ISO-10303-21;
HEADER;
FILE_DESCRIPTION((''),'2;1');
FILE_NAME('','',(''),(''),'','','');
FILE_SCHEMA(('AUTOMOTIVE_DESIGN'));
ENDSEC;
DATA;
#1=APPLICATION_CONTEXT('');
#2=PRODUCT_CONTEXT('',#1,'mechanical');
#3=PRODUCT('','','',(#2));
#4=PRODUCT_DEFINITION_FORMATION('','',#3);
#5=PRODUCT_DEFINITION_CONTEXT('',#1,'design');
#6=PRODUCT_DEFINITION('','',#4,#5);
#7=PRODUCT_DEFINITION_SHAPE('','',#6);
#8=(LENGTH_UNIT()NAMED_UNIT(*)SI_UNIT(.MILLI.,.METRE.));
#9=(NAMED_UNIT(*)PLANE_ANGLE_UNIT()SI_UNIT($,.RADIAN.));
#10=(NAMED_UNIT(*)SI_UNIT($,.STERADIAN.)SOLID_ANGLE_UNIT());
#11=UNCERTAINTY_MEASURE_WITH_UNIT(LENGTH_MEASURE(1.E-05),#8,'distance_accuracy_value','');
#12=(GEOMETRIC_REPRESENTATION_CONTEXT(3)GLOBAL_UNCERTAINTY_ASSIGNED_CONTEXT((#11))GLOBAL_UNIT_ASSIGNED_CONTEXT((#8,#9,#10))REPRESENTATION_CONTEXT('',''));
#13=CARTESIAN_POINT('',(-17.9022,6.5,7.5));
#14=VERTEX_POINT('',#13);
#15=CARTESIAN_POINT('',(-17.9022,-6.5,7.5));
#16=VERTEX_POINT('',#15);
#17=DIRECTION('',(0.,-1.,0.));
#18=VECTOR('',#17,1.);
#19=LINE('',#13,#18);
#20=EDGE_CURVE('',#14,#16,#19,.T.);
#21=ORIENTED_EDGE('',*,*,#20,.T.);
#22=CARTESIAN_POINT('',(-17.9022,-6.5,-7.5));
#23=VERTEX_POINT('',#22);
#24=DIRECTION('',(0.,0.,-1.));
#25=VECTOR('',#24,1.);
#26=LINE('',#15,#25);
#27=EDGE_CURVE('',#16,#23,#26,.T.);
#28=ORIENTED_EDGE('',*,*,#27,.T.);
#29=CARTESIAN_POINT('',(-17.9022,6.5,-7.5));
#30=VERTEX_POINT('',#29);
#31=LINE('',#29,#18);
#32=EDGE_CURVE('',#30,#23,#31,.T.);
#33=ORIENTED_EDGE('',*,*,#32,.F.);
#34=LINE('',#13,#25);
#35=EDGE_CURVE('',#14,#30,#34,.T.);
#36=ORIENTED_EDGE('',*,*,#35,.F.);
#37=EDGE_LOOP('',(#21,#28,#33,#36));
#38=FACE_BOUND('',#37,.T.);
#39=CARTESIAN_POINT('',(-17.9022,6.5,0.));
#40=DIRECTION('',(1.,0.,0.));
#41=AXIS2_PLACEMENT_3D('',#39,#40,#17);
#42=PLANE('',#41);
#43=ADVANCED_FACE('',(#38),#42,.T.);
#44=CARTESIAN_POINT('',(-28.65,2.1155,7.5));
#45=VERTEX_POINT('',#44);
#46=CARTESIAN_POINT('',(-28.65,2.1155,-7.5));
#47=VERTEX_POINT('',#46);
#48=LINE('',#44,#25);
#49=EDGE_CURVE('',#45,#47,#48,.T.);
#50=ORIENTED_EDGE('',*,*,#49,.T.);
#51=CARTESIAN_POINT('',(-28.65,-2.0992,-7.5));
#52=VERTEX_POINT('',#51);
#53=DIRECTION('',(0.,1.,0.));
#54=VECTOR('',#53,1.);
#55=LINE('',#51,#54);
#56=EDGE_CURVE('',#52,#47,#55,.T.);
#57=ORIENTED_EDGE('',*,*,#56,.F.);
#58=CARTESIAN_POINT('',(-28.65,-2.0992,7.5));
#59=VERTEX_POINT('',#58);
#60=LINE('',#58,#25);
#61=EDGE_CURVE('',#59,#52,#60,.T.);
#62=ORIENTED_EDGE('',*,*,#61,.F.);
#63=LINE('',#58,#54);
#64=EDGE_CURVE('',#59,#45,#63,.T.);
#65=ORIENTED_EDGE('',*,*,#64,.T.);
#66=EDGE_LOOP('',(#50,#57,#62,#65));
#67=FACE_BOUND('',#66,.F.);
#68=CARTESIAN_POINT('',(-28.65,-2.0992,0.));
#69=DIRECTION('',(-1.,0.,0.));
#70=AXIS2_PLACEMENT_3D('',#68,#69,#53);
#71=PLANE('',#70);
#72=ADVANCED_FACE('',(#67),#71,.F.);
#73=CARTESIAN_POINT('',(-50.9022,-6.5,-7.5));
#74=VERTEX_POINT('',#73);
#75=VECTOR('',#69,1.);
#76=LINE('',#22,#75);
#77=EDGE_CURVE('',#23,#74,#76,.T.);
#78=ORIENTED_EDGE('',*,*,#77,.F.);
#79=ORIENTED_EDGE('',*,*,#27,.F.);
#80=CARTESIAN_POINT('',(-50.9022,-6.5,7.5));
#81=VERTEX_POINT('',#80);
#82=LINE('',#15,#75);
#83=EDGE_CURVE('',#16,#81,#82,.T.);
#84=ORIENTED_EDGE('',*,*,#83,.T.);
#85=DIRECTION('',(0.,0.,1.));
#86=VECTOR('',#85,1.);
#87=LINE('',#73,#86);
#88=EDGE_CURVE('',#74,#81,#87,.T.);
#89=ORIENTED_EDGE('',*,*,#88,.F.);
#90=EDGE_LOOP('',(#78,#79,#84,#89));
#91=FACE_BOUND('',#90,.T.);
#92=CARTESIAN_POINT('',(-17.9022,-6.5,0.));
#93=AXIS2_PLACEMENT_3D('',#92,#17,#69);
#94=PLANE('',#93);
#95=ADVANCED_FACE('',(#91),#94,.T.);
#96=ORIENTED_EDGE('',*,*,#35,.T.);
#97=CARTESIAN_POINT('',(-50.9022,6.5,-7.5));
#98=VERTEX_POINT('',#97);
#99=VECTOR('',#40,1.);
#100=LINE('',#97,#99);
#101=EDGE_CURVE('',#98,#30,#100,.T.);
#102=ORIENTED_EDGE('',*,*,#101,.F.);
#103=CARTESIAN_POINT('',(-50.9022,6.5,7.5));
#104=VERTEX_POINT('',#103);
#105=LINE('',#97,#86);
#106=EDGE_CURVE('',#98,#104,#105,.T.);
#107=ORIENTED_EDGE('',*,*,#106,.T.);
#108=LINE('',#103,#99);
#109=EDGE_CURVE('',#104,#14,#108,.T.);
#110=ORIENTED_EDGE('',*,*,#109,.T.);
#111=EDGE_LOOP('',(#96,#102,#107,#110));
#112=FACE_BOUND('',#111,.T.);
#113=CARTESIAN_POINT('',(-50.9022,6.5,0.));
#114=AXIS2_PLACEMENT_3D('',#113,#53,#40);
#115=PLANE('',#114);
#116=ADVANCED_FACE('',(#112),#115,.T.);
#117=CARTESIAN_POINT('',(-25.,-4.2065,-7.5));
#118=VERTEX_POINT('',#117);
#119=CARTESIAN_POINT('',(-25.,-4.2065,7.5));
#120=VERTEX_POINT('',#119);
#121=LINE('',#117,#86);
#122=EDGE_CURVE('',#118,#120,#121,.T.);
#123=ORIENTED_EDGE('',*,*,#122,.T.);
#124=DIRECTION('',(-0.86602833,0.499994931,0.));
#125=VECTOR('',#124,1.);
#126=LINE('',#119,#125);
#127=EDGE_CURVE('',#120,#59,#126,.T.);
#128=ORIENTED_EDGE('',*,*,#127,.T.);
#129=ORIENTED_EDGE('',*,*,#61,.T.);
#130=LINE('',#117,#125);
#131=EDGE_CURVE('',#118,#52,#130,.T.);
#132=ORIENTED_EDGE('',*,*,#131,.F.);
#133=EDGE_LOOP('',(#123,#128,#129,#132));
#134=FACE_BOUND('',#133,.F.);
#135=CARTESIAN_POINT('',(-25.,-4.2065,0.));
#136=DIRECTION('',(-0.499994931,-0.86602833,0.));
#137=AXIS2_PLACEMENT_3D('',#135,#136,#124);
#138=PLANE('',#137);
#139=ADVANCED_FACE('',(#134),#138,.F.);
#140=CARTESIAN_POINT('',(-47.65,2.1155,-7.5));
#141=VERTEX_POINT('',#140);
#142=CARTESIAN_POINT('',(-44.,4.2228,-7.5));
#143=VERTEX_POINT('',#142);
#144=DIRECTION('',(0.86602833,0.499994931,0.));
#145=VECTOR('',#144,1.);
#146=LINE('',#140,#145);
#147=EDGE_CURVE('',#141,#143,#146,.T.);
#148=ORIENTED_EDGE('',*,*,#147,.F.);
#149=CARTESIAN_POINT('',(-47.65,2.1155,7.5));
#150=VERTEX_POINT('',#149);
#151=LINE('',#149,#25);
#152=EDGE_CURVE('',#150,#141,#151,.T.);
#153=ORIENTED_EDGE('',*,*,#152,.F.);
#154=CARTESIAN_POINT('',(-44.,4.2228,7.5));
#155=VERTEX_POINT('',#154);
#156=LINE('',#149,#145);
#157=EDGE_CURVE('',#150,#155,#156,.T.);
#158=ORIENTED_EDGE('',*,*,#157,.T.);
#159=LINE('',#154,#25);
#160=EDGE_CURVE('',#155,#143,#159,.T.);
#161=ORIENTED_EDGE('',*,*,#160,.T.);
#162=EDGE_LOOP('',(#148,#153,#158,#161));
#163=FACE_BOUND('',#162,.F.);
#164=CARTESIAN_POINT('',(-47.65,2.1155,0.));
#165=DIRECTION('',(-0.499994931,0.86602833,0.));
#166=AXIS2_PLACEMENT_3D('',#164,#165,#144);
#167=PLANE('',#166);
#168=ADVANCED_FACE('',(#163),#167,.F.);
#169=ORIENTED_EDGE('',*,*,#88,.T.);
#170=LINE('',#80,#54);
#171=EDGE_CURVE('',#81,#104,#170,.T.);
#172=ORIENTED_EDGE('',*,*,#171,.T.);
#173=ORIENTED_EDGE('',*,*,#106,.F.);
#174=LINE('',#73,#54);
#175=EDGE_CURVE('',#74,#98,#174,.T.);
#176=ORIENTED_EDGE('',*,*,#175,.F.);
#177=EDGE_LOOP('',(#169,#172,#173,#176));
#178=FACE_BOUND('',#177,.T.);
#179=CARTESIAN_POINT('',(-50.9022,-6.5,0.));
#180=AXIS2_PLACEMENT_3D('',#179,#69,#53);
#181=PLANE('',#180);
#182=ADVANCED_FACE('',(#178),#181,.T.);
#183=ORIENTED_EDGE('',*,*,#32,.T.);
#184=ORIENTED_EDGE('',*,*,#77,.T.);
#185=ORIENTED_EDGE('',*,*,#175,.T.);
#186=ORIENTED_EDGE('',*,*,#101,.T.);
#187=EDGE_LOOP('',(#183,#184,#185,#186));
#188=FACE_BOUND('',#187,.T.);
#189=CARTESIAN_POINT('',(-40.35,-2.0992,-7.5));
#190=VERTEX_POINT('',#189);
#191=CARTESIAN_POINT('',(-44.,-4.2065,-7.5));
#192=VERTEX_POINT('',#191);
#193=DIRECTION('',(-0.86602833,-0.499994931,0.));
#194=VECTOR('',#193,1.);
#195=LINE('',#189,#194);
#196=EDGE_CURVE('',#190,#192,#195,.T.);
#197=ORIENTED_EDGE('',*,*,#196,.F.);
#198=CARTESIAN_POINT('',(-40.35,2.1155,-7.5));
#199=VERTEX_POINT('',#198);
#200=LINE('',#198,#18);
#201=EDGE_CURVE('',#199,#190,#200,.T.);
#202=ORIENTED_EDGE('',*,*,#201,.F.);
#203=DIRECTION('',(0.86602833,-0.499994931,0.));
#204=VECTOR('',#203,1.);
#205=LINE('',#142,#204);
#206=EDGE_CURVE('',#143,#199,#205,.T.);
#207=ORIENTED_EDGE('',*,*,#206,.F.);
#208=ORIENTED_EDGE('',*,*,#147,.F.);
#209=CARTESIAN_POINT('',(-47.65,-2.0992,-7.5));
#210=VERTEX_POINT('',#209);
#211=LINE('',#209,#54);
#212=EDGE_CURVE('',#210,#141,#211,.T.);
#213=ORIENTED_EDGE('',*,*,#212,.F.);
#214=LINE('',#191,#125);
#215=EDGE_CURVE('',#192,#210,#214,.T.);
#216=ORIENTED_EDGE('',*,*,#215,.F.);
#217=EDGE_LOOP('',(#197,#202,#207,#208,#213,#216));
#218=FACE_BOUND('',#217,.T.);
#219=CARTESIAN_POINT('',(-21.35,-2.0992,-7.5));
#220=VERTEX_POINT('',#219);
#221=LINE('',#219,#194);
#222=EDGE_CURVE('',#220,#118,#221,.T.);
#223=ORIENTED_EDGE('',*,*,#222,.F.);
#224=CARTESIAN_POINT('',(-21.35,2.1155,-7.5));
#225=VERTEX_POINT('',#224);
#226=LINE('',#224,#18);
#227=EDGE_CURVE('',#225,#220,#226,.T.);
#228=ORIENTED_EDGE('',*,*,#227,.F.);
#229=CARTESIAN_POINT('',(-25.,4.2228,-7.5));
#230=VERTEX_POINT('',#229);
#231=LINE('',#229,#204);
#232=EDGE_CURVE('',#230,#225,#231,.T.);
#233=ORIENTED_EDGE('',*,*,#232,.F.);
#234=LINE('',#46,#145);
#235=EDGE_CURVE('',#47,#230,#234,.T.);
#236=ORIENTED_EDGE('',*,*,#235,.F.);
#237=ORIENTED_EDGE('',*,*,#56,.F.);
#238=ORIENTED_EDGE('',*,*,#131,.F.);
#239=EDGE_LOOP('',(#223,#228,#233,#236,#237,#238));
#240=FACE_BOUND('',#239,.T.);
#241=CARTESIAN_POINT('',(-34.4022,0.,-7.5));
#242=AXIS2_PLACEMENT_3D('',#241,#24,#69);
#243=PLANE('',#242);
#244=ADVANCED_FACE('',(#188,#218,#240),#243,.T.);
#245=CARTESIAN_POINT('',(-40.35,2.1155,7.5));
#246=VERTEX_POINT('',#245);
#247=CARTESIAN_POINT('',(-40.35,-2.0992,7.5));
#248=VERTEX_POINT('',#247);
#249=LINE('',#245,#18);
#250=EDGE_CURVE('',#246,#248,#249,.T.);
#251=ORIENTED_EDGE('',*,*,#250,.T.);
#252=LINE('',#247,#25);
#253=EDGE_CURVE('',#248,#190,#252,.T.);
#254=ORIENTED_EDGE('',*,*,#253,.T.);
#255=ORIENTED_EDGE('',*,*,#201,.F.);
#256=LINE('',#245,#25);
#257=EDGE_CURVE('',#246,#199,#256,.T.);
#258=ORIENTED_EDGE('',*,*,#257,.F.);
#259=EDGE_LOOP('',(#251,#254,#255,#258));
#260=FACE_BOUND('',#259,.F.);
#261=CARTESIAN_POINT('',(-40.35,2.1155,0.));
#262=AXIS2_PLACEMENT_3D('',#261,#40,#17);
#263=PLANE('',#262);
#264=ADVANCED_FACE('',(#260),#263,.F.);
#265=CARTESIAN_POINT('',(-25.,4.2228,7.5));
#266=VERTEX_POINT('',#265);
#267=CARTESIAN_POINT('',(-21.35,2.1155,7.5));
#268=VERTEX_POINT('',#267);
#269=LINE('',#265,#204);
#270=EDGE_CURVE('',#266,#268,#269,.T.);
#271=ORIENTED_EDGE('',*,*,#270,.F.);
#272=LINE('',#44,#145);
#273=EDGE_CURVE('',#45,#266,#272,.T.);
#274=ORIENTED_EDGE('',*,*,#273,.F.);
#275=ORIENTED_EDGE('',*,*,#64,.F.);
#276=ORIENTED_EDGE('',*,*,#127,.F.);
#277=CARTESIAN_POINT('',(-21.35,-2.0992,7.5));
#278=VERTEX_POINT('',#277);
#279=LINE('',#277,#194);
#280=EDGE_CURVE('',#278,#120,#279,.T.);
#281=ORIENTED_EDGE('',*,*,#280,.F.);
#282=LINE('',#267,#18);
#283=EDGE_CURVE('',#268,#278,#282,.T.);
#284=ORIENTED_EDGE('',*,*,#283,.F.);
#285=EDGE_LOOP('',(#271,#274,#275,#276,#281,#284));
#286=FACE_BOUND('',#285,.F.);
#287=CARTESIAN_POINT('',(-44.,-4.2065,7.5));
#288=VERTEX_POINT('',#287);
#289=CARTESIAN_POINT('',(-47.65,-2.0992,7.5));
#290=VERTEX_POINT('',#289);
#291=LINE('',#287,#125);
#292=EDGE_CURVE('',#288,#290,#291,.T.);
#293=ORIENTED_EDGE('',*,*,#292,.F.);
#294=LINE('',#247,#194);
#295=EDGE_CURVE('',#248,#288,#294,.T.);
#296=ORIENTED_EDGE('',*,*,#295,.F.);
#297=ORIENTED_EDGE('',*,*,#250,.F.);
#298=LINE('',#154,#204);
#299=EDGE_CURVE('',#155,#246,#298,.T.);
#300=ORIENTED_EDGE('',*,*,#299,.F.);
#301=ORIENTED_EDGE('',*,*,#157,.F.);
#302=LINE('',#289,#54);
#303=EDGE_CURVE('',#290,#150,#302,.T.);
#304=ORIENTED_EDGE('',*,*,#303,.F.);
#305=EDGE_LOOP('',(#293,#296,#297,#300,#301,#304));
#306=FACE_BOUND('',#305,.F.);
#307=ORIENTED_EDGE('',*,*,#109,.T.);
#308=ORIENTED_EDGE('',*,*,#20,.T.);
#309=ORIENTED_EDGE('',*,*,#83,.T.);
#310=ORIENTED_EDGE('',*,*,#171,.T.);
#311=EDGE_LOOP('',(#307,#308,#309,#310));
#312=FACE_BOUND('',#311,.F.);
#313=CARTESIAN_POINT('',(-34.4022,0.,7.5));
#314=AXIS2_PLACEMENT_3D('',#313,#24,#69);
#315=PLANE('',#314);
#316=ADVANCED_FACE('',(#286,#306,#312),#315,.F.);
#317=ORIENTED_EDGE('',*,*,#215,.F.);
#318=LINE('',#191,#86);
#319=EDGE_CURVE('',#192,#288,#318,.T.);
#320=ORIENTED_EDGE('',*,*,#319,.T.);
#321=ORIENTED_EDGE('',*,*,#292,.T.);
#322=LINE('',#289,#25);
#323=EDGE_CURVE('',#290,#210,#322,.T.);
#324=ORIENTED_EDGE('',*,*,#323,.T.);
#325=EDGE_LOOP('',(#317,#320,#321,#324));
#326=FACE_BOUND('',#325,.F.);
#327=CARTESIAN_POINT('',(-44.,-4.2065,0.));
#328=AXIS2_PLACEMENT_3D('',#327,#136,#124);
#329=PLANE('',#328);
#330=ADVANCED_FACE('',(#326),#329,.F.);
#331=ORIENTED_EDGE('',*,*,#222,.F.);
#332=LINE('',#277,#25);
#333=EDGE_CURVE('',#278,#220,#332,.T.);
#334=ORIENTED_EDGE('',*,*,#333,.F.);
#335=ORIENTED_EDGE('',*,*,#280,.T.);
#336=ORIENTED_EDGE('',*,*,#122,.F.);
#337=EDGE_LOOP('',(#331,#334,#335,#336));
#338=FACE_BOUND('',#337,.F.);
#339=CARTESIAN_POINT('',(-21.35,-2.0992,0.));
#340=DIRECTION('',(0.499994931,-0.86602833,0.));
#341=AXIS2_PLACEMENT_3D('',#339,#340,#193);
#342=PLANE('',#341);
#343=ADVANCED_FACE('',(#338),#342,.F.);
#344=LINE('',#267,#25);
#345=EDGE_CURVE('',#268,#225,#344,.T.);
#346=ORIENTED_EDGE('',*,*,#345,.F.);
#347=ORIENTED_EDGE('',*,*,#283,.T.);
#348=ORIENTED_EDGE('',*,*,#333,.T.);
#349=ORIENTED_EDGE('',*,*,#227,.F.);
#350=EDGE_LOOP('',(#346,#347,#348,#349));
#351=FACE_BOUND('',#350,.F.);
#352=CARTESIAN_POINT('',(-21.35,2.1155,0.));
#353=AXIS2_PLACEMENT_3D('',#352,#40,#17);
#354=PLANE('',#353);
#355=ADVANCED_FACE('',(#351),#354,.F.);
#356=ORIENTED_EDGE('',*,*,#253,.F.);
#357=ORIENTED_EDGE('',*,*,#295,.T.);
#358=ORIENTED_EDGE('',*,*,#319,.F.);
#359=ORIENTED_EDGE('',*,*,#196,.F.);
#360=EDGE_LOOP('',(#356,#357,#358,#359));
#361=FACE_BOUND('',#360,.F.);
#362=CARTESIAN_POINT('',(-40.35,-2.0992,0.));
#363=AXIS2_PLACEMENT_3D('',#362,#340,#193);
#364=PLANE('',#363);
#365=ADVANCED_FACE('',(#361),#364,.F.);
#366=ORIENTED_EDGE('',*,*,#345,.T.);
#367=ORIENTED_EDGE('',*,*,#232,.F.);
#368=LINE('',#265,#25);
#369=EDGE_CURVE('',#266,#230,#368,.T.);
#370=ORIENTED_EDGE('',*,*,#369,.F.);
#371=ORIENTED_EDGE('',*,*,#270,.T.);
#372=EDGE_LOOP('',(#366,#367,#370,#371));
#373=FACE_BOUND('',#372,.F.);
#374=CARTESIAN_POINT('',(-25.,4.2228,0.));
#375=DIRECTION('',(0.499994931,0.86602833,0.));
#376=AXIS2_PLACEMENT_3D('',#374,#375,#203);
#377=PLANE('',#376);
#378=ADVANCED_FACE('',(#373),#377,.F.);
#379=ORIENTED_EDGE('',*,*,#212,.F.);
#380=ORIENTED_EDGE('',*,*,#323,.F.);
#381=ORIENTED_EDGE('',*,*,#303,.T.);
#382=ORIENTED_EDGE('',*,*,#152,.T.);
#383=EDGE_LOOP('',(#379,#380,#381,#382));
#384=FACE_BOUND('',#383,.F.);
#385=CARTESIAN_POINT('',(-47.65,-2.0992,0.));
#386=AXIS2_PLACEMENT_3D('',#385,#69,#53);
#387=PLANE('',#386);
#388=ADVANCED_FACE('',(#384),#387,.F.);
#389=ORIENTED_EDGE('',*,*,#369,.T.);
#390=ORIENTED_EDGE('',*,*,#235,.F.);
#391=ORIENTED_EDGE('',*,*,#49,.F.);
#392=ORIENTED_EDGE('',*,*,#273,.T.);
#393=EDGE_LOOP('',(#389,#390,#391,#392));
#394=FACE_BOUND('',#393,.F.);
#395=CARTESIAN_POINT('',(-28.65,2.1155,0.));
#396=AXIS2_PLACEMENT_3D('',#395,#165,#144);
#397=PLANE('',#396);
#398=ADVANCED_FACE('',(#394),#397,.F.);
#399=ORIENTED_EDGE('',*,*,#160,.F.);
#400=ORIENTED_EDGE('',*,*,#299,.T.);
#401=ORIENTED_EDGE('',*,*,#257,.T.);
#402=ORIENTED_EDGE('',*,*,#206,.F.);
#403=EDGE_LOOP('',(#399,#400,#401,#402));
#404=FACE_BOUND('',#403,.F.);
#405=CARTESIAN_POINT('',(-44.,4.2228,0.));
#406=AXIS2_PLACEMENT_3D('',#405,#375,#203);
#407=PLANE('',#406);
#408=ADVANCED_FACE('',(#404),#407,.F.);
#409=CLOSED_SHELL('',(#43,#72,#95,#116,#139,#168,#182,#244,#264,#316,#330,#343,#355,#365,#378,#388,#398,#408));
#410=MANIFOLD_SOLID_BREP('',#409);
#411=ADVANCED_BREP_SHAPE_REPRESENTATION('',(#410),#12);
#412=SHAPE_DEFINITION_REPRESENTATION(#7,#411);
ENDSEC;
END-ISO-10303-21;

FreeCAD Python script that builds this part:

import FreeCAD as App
import Part
import Sketcher
Q = App.Units.Quantity

doc = App.newDocument("Part")
body = doc.addObject("PartDesign::Body", "Body")

# Sketch on XY plane
sketch1 = doc.addObject("Sketcher::SketchObject", "Sketch")
body.addObject(sketch1)
sketch1.AttachmentSupport = (doc.XY_Plane, [""])
sketch1.MapMode = "FlatFace"
sketch1.addGeometry(Part.LineSegment(App.Vector(-17.9022, 6.5, 0), App.Vector(-50.9022, 6.5, 0)), False)
sketch1.addGeometry(Part.LineSegment(App.Vector(-50.9022, 6.5, 0), App.Vector(-50.9022, -6.5, 0)), False)
sketch1.addGeometry(Part.LineSegment(App.Vector(-50.9022, -6.5, 0), App.Vector(-17.9022, -6.5, 0)), False)
sketch1.addGeometry(Part.LineSegment(App.Vector(-17.9022, -6.5, 0), App.Vector(-17.9022, 6.5, 0)), False)
sketch1.addGeometry(Part.LineSegment(App.Vector(-47.65, -2.0992, 0), App.Vector(-47.65, 2.1155, 0)), False)
sketch1.addGeometry(Part.LineSegment(App.Vector(-47.65, 2.1155, 0), App.Vector(-44, 4.2228, 0)), False)
sketch1.addGeometry(Part.LineSegment(App.Vector(-44, 4.2228, 0), App.Vector(-40.35, 2.1155, 0)), False)
sketch1.addGeometry(Part.LineSegment(App.Vector(-40.35, 2.1155, 0), App.Vector(-40.35, -2.0992, 0)), False)
sketch1.addGeometry(Part.LineSegment(App.Vector(-40.35, -2.0992, 0), App.Vector(-44, -4.2065, 0)), False)
sketch1.addGeometry(Part.LineSegment(App.Vector(-44, -4.2065, 0), App.Vector(-47.65, -2.0992, 0)), False)
sketch1.addGeometry(Part.LineSegment(App.Vector(-28.65, -2.0992, 0), App.Vector(-28.65, 2.1155, 0)), False)
sketch1.addGeometry(Part.LineSegment(App.Vector(-28.65, 2.1155, 0), App.Vector(-25, 4.2228, 0)), False)
sketch1.addGeometry(Part.LineSegment(App.Vector(-25, 4.2228, 0), App.Vector(-21.35, 2.1155, 0)), False)
sketch1.addGeometry(Part.LineSegment(App.Vector(-21.35, 2.1155, 0), App.Vector(-21.35, -2.0992, 0)), False)
sketch1.addGeometry(Part.LineSegment(App.Vector(-21.35, -2.0992, 0), App.Vector(-25, -4.2065, 0)), False)
sketch1.addGeometry(Part.LineSegment(App.Vector(-25, -4.2065, 0), App.Vector(-28.65, -2.0992, 0)), False)
sketch1.addConstraint(Sketcher.Constraint("Coincident", 0, 2, 1, 1))
sketch1.addConstraint(Sketcher.Constraint("Coincident", 1, 2, 2, 1))
sketch1.addConstraint(Sketcher.Constraint("Coincident", 2, 2, 3, 1))
sketch1.addConstraint(Sketcher.Constraint("Coincident", 3, 2, 0, 1))
sketch1.addConstraint(Sketcher.Constraint("Coincident", 4, 2, 5, 1))
sketch1.addConstraint(Sketcher.Constraint("Coincident", 5, 2, 6, 1))
sketch1.addConstraint(Sketcher.Constraint("Coincident", 6, 2, 7, 1))
sketch1.addConstraint(Sketcher.Constraint("Coincident", 7, 2, 8, 1))
sketch1.addConstraint(Sketcher.Constraint("Coincident", 8, 2, 9, 1))
sketch1.addConstraint(Sketcher.Constraint("Coincident", 9, 2, 4, 1))
sketch1.addConstraint(Sketcher.Constraint("Coincident", 10, 2, 11, 1))
sketch1.addConstraint(Sketcher.Constraint("Coincident", 11, 2, 12, 1))
sketch1.addConstraint(Sketcher.Constraint("Coincident", 12, 2, 13, 1))
sketch1.addConstraint(Sketcher.Constraint("Coincident", 13, 2, 14, 1))
sketch1.addConstraint(Sketcher.Constraint("Coincident", 14, 2, 15, 1))
sketch1.addConstraint(Sketcher.Constraint("Coincident", 15, 2, 10, 1))
sketch1.addConstraint(Sketcher.Constraint("Horizontal", 0))
sketch1.addConstraint(Sketcher.Constraint("Vertical", 1))
sketch1.addConstraint(Sketcher.Constraint("Horizontal", 2))
sketch1.addConstraint(Sketcher.Constraint("Vertical", 3))
sketch1.addConstraint(Sketcher.Constraint("Vertical", 4))
sketch1.addConstraint(Sketcher.Constraint("Vertical", 7))
sketch1.addConstraint(Sketcher.Constraint("Vertical", 10))
sketch1.addConstraint(Sketcher.Constraint("Vertical", 13))
sketch1.addConstraint(Sketcher.Constraint("Parallel", 5, 8))
sketch1.addConstraint(Sketcher.Constraint("Parallel", 6, 9))
sketch1.addConstraint(Sketcher.Constraint("Parallel", 8, 11))
sketch1.addConstraint(Sketcher.Constraint("Parallel", 9, 12))
sketch1.addConstraint(Sketcher.Constraint("Parallel", 11, 14))
sketch1.addConstraint(Sketcher.Constraint("Parallel", 12, 15))
sketch1.addConstraint(Sketcher.Constraint("Horizontal", 4, 2, 6, 2))
sketch1.addConstraint(Sketcher.Constraint("Horizontal", 7, 2, 9, 2))
sketch1.addConstraint(Sketcher.Constraint("Horizontal", 6, 2, 10, 2))
sketch1.addConstraint(Sketcher.Constraint("Horizontal", 5, 2, 11, 2))
sketch1.addConstraint(Sketcher.Constraint("Horizontal", 10, 2, 12, 2))
sketch1.addConstraint(Sketcher.Constraint("Horizontal", 9, 2, 13, 2))
sketch1.addConstraint(Sketcher.Constraint("Horizontal", 8, 2, 14, 2))
sketch1.addConstraint(Sketcher.Constraint("Vertical", 5, 2, 8, 2))
sketch1.addConstraint(Sketcher.Constraint("DistanceX", 0, 2, 0, 1, Q("33 mm")))
sketch1.addConstraint(Sketcher.Constraint("DistanceY", 1, 2, 1, 1, Q("13 mm")))
sketch1.addConstraint(Sketcher.Constraint("Angle", 5, Q("29.9997 deg")))
sketch1.addConstraint(Sketcher.Constraint("DistanceX", 5, 2, -1, 1, Q("44 mm")))
sketch1.addConstraint(Sketcher.Constraint("DistanceX", 11, 2, -1, 1, Q("25 mm")))
sketch1.addConstraint(Sketcher.Constraint("DistanceY", -1, 1, 0, 2, Q("6.5 mm")))
sketch1.addConstraint(Sketcher.Constraint("DistanceX", 4, 2, 6, 2, Q("7.3 mm")))
sketch1.addConstraint(Sketcher.Constraint("DistanceY", 4, 1, 4, 2, Q("4.2147 mm")))
sketch1.addConstraint(Sketcher.Constraint("DistanceX", 0, 2, -1, 1, Q("50.9022 mm")))
sketch1.addConstraint(Sketcher.Constraint("DistanceY", -1, 1, 4, 2, Q("2.1155 mm")))
pad1 = doc.addObject("PartDesign::Pad", "Pad")
body.addObject(pad1)
pad1.Profile = sketch1
pad1.Length = 15
pad1.Midplane = True

doc.recompute()
